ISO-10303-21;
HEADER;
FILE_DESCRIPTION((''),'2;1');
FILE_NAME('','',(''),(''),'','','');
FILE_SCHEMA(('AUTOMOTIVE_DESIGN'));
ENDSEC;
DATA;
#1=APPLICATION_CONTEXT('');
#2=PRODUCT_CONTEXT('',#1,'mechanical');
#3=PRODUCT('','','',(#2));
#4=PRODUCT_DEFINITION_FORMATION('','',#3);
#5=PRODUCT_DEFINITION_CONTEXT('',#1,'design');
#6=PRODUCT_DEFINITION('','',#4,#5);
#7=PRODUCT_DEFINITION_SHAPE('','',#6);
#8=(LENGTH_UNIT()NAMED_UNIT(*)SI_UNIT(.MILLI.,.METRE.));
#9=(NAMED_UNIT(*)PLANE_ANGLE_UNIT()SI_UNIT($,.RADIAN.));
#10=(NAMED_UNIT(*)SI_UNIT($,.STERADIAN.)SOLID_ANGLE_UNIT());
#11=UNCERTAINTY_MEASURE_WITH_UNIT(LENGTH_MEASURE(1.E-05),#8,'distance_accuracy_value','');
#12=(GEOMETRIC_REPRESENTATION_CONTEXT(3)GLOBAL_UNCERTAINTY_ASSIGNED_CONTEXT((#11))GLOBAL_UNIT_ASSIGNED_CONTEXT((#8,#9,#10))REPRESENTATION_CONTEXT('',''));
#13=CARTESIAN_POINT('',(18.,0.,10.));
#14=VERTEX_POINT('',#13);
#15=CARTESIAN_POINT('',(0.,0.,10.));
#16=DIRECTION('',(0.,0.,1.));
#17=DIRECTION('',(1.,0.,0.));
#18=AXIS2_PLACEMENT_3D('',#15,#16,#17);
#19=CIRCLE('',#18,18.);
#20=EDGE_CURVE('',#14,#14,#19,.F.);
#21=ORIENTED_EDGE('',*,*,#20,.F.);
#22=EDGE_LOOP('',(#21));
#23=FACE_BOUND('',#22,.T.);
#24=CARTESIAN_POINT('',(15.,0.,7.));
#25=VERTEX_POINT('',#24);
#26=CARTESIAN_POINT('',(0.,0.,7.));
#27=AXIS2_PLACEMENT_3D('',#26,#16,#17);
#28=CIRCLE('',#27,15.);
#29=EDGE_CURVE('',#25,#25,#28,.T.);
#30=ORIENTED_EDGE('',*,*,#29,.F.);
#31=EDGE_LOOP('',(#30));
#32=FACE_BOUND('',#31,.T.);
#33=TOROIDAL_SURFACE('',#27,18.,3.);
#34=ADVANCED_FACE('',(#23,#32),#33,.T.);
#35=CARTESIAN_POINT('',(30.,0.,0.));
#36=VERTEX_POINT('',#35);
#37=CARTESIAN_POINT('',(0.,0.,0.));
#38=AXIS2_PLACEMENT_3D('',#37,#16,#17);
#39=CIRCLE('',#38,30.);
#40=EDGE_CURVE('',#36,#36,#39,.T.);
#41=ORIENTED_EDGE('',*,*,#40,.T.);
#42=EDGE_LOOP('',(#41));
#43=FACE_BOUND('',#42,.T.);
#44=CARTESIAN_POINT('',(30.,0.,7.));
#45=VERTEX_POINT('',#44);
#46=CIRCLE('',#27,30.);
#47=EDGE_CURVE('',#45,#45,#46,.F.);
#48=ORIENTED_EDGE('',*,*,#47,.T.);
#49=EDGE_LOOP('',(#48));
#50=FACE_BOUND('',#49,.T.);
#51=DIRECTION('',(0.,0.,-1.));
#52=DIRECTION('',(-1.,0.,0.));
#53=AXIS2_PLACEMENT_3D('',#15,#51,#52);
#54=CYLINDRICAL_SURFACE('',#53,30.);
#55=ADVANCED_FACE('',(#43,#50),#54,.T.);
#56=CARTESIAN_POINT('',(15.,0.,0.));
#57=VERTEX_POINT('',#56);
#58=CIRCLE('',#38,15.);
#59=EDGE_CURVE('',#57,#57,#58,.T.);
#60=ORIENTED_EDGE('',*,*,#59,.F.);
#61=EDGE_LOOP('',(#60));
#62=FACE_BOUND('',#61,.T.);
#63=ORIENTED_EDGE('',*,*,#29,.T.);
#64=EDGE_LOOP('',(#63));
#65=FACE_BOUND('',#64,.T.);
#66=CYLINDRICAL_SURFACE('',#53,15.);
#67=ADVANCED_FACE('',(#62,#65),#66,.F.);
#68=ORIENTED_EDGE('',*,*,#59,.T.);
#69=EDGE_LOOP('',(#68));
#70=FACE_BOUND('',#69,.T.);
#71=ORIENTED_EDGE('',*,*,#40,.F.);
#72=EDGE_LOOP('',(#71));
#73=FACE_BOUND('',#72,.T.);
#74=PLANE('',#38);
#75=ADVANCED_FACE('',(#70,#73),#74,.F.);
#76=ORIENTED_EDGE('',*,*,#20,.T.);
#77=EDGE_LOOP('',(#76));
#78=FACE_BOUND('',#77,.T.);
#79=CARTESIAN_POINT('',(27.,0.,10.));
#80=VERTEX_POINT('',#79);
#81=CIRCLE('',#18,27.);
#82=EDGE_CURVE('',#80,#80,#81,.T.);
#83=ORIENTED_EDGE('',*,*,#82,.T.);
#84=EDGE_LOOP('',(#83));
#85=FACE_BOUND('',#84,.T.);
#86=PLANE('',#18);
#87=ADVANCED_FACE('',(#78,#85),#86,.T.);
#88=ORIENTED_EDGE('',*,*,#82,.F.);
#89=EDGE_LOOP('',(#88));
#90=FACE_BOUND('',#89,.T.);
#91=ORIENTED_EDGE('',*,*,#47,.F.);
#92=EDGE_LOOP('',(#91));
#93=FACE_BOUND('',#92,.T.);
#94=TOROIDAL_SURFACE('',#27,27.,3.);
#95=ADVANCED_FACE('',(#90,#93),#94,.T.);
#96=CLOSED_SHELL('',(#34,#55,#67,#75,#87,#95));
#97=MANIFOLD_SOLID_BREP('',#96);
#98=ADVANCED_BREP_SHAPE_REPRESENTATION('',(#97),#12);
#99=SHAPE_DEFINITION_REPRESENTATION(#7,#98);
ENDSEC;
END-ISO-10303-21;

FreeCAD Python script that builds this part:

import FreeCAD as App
import Part
import Sketcher
from FreeCAD import Vector


def edges_at(feature, points):
    """Names of the edges that pass closest to the given points."""
    edges = feature.Shape.Edges
    near = lambda p: min(range(len(edges)), key=lambda i: edges[i].distToShape(Part.Vertex(*p))[0])
    return sorted({f"Edge{near(p) + 1}" for p in points})

doc = App.newDocument("Part")
body = doc.addObject("PartDesign::Body", "Body")

sketch1 = body.newObject("Sketcher::SketchObject", "Sketch")
sketch1.AttachmentSupport = (doc.getObject("XY_Plane"), [""])
sketch1.MapMode = "FlatFace"
sketch1.addGeometry(Part.Circle(Vector(0, 0, 0), Vector(0, 0, 1), 30), False)
sketch1.addGeometry(Part.Circle(Vector(0, 0, 0), Vector(0, 0, 1), 15), False)
sketch1.addConstraint(Sketcher.Constraint("Coincident", 0, 3, -1, 1))
sketch1.addConstraint(Sketcher.Constraint("Coincident", 1, 3, -1, 1))
sketch1.addConstraint(Sketcher.Constraint("Diameter", 0, 60.0))
sketch1.addConstraint(Sketcher.Constraint("Diameter", 1, 30.0))
pad1 = body.newObject("PartDesign::Pad", "Pad")
pad1.Profile = sketch1
pad1.Length = 10
doc.recompute()

fillet = body.newObject("PartDesign::Fillet", "Fillet")
fillet.Base = (pad1, edges_at(pad1, [(-30, 0, 10), (-15, 0, 10)]))
fillet.Radius = 3

doc.recompute()
